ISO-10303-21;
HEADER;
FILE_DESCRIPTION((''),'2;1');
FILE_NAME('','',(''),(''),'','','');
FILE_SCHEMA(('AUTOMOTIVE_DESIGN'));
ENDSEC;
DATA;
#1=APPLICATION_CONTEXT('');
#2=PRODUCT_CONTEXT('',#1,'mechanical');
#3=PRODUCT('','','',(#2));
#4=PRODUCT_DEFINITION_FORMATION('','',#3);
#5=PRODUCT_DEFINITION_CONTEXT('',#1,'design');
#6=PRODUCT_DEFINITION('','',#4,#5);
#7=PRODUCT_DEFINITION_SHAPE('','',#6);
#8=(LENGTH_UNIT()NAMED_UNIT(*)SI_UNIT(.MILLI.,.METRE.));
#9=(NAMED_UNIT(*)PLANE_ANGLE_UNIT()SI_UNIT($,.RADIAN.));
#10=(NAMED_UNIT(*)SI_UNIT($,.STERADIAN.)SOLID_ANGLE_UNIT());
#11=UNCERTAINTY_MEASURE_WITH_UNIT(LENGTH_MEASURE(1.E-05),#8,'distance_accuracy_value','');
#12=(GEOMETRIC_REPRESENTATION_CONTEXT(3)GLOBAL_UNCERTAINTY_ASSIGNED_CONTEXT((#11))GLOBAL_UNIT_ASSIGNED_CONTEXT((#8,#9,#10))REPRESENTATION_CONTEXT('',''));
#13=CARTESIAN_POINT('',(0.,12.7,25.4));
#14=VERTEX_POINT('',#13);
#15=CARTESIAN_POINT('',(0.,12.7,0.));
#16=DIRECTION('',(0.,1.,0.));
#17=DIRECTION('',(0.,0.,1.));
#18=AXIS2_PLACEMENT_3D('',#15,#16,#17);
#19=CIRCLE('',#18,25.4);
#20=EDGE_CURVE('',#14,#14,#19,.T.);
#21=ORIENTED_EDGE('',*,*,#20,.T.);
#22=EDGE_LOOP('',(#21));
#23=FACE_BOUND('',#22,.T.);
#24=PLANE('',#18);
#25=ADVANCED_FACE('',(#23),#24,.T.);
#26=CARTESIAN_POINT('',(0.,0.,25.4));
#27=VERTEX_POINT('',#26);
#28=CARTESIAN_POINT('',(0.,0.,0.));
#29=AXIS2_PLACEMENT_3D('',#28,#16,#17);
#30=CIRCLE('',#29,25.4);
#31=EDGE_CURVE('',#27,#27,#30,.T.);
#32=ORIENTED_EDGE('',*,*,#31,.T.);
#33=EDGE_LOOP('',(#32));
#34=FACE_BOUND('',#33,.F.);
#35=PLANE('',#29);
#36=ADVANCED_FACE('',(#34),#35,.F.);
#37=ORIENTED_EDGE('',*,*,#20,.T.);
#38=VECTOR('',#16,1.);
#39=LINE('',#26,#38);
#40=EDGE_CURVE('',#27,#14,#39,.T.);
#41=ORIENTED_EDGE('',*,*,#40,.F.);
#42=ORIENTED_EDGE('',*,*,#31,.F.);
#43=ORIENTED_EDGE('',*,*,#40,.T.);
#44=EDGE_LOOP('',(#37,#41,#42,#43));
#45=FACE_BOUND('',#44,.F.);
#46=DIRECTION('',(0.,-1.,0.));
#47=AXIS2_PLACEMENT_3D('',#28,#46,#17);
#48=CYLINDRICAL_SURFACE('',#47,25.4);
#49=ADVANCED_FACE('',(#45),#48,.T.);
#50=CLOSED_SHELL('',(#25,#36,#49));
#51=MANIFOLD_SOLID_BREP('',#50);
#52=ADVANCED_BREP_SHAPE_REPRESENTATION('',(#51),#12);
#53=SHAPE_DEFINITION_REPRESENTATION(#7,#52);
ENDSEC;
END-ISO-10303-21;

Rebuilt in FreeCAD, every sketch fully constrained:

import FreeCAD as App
import Part
import Sketcher
from FreeCAD import Vector
Q = App.Units.Quantity

doc = App.newDocument("Part")
params = doc.addObject("Spreadsheet::Sheet", "Params")
for row, (alias, value) in enumerate([
    ("sketch1_diameter", "2 in"),
    ("pad1_length", "0.5 in"),
], start=1):
    params.set(f"A{row}", alias)
    params.set(f"B{row}", "=" + value)
    params.setAlias(f"B{row}", alias)

body = doc.addObject("PartDesign::Body", "Body")

sketch1 = body.newObject("Sketcher::SketchObject", "Sketch")
sketch1.AttachmentSupport = (doc.getObject("XZ_Plane"), [""])
sketch1.MapMode = "FlatFace"
sketch1.addGeometry(Part.Circle(Vector(0, 0, 0), Vector(0, 0, 1), 25.4), False)
sketch1.addConstraint([
    Sketcher.Constraint("Coincident", 0, 3, -1, 1),
    Sketcher.Constraint("Diameter", 0, Q("2 in")),
])
sketch1.setExpression("Constraints[1]", "Params.sketch1_diameter")
pad1 = body.newObject("PartDesign::Pad", "Pad")
pad1.Profile = sketch1
pad1.setExpression("Length", "Params.pad1_length")
pad1.Reversed = True

doc.recompute()
